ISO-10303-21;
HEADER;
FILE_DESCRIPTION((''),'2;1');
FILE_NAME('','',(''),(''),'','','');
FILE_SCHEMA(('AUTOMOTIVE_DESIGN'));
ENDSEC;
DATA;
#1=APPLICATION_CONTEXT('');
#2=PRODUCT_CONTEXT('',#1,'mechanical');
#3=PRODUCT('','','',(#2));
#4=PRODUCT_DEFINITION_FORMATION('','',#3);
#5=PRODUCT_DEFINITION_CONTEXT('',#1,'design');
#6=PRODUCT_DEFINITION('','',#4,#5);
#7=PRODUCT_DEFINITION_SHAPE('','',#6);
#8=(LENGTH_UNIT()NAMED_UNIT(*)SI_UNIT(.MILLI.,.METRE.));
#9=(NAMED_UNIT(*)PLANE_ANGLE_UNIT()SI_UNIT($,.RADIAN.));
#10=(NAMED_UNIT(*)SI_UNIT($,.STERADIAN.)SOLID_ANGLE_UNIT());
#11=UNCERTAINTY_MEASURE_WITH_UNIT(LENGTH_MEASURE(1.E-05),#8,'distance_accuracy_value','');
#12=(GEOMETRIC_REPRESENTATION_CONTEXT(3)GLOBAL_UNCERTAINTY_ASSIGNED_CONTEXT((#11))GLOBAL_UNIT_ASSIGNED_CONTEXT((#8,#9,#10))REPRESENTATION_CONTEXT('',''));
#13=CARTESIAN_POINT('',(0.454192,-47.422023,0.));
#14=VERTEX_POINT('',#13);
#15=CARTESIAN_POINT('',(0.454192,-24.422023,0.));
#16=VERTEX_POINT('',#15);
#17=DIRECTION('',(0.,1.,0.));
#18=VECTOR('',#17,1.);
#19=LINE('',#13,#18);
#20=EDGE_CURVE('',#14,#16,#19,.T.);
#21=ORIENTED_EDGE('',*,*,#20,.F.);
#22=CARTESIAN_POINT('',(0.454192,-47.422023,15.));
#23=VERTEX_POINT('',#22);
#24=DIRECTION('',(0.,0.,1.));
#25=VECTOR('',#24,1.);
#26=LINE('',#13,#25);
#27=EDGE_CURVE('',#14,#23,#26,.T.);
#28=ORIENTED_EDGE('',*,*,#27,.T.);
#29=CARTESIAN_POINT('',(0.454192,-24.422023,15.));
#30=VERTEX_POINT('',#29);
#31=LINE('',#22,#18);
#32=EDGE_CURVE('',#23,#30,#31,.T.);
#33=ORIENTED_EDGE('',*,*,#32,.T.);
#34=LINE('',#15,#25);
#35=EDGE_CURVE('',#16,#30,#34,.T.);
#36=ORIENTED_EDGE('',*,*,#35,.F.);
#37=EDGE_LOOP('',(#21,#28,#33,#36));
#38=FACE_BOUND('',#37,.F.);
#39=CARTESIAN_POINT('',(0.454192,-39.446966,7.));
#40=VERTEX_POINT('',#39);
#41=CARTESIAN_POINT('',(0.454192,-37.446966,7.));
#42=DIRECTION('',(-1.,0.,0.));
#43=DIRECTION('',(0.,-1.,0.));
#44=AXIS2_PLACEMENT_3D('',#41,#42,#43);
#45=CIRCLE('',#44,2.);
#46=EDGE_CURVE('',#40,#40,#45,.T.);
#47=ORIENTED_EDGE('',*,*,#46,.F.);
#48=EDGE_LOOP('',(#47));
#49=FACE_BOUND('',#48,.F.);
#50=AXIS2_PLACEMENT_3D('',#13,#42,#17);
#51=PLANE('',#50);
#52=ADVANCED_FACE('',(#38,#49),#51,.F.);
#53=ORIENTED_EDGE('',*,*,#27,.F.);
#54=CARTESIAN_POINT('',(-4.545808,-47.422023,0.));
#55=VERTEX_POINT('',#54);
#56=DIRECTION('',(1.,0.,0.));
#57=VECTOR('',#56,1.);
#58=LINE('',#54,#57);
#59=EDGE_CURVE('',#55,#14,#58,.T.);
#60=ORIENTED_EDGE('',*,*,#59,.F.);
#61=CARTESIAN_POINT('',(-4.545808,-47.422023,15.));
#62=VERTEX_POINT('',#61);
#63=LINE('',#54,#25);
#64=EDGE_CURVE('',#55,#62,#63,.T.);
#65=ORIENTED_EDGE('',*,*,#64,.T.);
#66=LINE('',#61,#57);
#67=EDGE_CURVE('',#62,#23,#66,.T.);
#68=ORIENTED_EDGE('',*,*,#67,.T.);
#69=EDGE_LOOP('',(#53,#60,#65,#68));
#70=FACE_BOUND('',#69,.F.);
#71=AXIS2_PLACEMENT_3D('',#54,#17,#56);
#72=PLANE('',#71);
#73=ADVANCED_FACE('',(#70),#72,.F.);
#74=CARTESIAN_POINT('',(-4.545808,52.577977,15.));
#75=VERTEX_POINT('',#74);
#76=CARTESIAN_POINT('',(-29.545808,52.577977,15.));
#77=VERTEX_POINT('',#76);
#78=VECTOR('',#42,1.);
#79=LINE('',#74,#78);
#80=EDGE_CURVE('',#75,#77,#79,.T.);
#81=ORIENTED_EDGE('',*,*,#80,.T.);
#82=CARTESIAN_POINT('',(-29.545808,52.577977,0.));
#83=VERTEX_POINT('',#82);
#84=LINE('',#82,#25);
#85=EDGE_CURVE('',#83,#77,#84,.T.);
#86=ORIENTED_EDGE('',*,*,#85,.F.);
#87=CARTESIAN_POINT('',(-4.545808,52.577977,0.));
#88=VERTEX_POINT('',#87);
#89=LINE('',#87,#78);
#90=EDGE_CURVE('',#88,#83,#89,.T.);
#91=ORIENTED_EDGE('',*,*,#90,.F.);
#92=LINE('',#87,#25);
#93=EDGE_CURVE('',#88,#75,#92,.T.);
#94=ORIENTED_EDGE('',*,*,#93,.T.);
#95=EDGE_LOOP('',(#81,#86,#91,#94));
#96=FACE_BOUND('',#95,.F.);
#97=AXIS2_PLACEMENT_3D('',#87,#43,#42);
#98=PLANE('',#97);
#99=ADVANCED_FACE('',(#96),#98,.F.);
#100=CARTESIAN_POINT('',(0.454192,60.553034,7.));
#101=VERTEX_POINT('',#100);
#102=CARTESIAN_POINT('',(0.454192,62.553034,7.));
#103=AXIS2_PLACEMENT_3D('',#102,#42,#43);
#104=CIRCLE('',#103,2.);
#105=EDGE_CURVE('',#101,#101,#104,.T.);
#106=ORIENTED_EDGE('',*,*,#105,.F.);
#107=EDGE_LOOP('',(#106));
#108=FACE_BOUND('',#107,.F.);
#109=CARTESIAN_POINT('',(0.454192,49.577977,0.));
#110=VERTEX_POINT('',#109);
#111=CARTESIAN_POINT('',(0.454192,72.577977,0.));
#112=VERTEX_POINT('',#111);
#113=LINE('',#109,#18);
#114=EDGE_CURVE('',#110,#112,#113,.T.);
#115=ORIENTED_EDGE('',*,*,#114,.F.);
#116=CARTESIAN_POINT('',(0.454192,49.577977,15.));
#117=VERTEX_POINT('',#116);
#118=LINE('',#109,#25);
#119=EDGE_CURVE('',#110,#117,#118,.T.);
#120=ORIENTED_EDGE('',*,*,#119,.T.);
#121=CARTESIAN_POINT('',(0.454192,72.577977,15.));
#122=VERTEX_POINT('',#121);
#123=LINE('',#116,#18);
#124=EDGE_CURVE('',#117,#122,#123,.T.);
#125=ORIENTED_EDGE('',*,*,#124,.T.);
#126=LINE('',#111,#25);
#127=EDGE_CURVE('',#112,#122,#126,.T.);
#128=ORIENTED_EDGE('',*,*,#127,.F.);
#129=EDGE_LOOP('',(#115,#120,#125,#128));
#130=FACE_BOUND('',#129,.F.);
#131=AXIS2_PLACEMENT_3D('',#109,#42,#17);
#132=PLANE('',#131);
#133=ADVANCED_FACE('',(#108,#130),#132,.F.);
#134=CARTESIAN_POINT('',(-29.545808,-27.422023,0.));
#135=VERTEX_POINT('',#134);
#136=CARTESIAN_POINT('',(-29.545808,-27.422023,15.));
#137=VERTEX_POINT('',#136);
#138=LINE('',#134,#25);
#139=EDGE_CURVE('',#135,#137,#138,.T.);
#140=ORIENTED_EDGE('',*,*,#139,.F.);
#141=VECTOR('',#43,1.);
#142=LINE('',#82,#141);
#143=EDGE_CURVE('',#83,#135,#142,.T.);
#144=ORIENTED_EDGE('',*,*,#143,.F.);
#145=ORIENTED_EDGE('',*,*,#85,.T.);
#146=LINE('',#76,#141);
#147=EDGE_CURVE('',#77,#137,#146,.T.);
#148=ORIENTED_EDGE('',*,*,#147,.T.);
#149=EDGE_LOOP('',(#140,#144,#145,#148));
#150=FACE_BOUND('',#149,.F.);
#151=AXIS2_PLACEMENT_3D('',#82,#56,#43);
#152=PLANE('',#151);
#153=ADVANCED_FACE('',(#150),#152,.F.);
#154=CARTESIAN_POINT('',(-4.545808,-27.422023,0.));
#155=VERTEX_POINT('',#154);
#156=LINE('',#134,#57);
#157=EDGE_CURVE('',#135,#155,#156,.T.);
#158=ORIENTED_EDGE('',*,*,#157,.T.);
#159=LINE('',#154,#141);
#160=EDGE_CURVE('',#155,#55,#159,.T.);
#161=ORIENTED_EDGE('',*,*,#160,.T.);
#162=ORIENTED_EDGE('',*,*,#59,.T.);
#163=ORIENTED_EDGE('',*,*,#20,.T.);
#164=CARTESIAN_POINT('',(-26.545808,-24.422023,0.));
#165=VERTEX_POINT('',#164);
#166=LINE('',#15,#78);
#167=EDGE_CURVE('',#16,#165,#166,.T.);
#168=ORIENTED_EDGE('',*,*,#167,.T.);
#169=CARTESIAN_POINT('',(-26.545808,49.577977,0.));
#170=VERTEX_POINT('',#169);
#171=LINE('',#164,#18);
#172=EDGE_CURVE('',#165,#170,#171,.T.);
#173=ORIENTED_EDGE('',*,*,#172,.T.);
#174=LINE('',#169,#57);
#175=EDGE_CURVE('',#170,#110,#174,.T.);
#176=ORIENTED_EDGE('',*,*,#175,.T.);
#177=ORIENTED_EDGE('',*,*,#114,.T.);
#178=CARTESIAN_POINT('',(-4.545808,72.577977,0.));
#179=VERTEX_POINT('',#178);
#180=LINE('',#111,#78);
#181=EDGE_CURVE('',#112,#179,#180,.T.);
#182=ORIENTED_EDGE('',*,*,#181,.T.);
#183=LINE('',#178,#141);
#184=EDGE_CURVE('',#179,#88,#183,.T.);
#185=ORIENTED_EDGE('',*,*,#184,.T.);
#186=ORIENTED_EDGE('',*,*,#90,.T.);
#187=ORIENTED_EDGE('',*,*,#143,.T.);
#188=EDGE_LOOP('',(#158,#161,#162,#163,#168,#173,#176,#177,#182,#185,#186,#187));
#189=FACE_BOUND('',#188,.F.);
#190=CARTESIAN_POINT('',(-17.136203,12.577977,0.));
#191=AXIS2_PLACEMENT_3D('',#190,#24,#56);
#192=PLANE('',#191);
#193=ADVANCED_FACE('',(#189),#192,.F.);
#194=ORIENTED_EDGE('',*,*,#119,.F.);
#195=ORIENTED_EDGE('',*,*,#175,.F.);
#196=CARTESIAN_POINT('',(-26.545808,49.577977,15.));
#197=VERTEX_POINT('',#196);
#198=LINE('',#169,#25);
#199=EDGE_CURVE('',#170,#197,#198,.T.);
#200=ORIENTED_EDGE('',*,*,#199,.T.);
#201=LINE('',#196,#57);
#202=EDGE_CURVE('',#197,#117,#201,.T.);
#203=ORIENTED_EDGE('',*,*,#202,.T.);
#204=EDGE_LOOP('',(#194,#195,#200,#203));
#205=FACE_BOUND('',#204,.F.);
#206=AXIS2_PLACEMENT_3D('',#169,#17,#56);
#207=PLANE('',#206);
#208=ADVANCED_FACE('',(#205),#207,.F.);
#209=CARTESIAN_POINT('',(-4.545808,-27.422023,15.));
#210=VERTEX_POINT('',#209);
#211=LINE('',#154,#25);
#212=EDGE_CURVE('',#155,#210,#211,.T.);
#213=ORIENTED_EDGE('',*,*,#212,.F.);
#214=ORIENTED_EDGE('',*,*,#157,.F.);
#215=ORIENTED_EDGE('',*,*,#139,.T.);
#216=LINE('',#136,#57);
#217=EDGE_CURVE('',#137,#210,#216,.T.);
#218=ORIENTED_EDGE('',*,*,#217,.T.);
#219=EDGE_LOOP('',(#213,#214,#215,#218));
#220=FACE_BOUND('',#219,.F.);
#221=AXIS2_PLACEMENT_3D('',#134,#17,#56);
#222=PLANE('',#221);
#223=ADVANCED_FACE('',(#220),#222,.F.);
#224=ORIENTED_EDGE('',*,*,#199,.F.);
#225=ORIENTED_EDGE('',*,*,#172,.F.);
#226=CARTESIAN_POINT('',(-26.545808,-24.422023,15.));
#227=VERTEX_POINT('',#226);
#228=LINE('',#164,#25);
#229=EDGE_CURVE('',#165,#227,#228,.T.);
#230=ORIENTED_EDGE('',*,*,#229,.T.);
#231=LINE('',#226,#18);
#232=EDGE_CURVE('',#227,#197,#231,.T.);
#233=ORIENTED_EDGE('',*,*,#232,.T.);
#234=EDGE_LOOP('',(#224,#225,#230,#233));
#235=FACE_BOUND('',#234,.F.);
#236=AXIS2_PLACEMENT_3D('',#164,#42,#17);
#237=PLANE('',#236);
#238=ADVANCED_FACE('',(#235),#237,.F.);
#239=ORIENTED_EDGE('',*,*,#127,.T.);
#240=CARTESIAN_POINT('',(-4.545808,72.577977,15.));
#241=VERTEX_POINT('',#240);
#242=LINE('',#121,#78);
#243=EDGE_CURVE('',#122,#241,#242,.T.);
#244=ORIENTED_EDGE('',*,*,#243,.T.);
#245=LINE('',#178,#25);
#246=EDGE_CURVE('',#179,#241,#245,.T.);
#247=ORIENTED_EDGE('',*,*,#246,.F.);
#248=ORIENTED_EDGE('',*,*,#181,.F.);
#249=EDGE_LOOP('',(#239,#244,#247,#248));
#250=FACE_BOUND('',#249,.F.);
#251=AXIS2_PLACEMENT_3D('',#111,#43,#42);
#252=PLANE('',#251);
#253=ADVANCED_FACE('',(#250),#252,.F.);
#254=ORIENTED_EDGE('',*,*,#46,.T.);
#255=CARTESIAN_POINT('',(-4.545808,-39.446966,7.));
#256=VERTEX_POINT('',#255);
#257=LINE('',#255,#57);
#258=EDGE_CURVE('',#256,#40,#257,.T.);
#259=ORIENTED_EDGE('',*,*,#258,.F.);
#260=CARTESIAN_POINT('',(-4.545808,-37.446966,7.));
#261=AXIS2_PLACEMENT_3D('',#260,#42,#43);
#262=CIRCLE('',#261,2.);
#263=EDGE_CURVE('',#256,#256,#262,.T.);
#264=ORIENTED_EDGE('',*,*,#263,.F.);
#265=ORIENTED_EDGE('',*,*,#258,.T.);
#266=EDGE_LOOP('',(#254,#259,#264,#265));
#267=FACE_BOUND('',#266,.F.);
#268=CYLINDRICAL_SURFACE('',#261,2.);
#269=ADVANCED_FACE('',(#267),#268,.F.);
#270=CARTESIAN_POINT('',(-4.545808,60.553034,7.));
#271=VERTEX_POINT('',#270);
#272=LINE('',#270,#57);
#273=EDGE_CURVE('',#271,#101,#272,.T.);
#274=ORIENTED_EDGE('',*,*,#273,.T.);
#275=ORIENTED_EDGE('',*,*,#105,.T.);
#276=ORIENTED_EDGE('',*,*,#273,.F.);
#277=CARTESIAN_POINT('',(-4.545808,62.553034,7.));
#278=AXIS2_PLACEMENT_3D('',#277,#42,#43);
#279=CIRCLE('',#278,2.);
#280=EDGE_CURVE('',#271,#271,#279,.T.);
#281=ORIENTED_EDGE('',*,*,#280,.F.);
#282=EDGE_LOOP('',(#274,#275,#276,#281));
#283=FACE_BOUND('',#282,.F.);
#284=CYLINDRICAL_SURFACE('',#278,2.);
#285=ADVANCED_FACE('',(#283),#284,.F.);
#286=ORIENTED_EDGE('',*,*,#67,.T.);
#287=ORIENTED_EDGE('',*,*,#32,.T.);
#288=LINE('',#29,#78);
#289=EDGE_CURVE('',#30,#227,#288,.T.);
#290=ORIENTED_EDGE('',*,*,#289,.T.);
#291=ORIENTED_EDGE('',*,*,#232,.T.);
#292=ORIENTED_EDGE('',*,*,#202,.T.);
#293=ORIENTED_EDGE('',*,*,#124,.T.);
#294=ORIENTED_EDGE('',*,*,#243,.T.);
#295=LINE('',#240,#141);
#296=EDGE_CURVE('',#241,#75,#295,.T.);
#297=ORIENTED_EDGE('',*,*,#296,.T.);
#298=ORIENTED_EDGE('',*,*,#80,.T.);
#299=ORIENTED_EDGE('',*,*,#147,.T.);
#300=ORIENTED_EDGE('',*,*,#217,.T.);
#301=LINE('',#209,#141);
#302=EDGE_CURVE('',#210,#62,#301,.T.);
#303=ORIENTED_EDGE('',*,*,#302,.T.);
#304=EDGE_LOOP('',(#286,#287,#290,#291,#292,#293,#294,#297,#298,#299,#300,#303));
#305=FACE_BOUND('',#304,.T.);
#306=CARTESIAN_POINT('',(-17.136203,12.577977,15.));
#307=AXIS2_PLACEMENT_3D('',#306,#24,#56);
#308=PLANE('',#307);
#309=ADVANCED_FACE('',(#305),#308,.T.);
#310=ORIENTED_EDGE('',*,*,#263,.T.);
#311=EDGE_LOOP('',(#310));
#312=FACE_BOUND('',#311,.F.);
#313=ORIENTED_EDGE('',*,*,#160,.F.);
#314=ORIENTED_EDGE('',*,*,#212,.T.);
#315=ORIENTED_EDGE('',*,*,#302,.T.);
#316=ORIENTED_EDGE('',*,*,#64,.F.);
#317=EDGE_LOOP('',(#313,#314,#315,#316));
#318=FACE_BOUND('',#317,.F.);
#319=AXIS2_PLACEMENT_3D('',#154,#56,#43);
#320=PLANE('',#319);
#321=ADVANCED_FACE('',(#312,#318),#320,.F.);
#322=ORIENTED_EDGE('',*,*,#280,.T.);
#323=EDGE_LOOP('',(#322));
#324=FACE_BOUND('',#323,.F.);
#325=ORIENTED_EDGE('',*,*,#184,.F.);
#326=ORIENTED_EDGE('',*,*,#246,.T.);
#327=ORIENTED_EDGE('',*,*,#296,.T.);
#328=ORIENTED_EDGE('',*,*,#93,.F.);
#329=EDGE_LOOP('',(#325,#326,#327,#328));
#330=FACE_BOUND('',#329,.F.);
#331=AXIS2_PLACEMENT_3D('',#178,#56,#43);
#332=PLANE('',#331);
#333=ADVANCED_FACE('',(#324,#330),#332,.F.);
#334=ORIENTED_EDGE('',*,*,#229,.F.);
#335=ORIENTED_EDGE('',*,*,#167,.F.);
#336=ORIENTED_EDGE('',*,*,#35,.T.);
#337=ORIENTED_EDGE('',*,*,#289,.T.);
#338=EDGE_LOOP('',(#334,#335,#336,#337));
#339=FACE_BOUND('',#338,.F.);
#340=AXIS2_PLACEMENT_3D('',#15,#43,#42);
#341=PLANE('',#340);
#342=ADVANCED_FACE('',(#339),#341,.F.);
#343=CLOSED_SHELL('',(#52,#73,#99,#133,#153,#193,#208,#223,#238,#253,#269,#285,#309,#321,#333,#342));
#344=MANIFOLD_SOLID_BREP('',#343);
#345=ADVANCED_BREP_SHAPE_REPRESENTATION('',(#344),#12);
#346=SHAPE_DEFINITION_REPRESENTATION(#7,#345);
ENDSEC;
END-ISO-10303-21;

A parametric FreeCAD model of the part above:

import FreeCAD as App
import Part
import Sketcher
from FreeCAD import Vector
Q = App.Units.Quantity


def add_polygon(sketch, points):
    """Adds a closed chain of lines whose ends are joined by coincident constraints."""
    first, n = sketch.GeometryCount, len(points)
    for a, b in zip(points, points[1:] + points[:1]):
        sketch.addGeometry(Part.LineSegment(App.Vector(*a, 0), App.Vector(*b, 0)), False)
    for i in range(n):
        sketch.addConstraint(Sketcher.Constraint("Coincident", first + i, 2, first + (i + 1) % n, 1))

doc = App.newDocument("Part")
params = doc.addObject("Spreadsheet::Sheet", "Params")
for row, (alias, value) in enumerate([
    ("sketch1_width", "25 mm"),
    ("sketch1_width2", "5 mm"),
    ("sketch1_width3", "27 mm"),
    ("sketch1_height", "20 mm"),
    ("sketch1_height2", "80 mm"),
    ("pad1_length", "15 mm"),
    ("sketch2_diameter", "4 mm"),
    ("pocket1_length", "25 mm"),
], start=1):
    params.set(f"A{row}", alias)
    params.set(f"B{row}", "=" + value)
    params.setAlias(f"B{row}", alias)

body = doc.addObject("PartDesign::Body", "Body")

# Sketch on XY plane
sketch1 = body.newObject("Sketcher::SketchObject", "Sketch")
sketch1.AttachmentSupport = (doc.getObject("XY_Plane"), [""])
sketch1.MapMode = "FlatFace"
add_polygon(sketch1, [(-4.545808, 72.577977), (-4.545808, 52.577977), (-29.545808, 52.577977), (-29.545808, -27.422023), (-4.545808, -27.422023), (-4.545808, -47.422023), (0.454192, -47.422023), (0.454192, -24.422023), (-26.545808, -24.422023), (-26.545808, 49.577977), (0.454192, 49.577977), (0.454192, 72.577977)])  # lines 0-11
sketch1.addConstraint(Sketcher.Constraint("Vertical", 0))
sketch1.addConstraint(Sketcher.Constraint("Horizontal", 1))
sketch1.addConstraint(Sketcher.Constraint("Vertical", 2))
sketch1.addConstraint(Sketcher.Constraint("Horizontal", 3))
sketch1.addConstraint(Sketcher.Constraint("Vertical", 4))
sketch1.addConstraint(Sketcher.Constraint("Horizontal", 5))
sketch1.addConstraint(Sketcher.Constraint("Vertical", 6))
sketch1.addConstraint(Sketcher.Constraint("Horizontal", 7))
sketch1.addConstraint(Sketcher.Constraint("Vertical", 8))
sketch1.addConstraint(Sketcher.Constraint("Horizontal", 9))
sketch1.addConstraint(Sketcher.Constraint("Vertical", 10))
sketch1.addConstraint(Sketcher.Constraint("Horizontal", 11))
sketch1.addConstraint(Sketcher.Constraint("Vertical", 0, 2, 3, 2))
sketch1.addConstraint(Sketcher.Constraint("Vertical", 6, 2, 9, 2))
sketch1.addConstraint(Sketcher.Constraint("Equal", 0, 4))
sketch1.addConstraint(Sketcher.Constraint("Equal", 6, 10))
sketch1.addConstraint(Sketcher.Constraint("DistanceX", 1, 2, 1, 1, Q("25 mm")))
sketch1.addConstraint(Sketcher.Constraint("DistanceX", 5, 1, 5, 2, Q("5 mm")))
sketch1.addConstraint(Sketcher.Constraint("DistanceX", 7, 2, 7, 1, Q("27 mm")))
sketch1.addConstraint(Sketcher.Constraint("DistanceY", 0, 2, 0, 1, Q("20 mm")))
sketch1.addConstraint(Sketcher.Constraint("DistanceY", 2, 2, 2, 1, Q("80 mm")))
sketch1.addConstraint(Sketcher.Constraint("DistanceY", 6, 1, 6, 2, Q("23 mm")))
sketch1.addConstraint(Sketcher.Constraint("DistanceX", 1, 2, -1, 1, Q("29.545808 mm")))
sketch1.addConstraint(Sketcher.Constraint("DistanceY", -1, 1, 0, 2, Q("52.577977 mm")))
sketch1.setExpression("Constraints[28]", "Params.sketch1_width")
sketch1.setExpression("Constraints[29]", "Params.sketch1_width2")
sketch1.setExpression("Constraints[30]", "Params.sketch1_width3")
sketch1.setExpression("Constraints[31]", "Params.sketch1_height")
sketch1.setExpression("Constraints[32]", "Params.sketch1_height2")
pad1 = body.newObject("PartDesign::Pad", "Pad")
pad1.Profile = sketch1
pad1.setExpression("Length", "Params.pad1_length")

# Sketch on YZ plane
sketch2 = body.newObject("Sketcher::SketchObject", "Sketch001")
sketch2.AttachmentSupport = (doc.getObject("YZ_Plane"), [""])
sketch2.MapMode = "FlatFace"
sketch2.AttachmentOffset = App.Placement(Vector(0, 0, -4.545808), App.Rotation())
sketch2.addGeometry(Part.Circle(Vector(62.553034, 7, 0), Vector(0, 0, 1), 2), False)
sketch2.addGeometry(Part.Circle(Vector(-37.446966, 7, 0), Vector(0, 0, 1), 2), False)
sketch2.addConstraint(Sketcher.Constraint("Equal", 0, 1))
sketch2.addConstraint(Sketcher.Constraint("Horizontal", 0, 3, 1, 3))
sketch2.addConstraint(Sketcher.Constraint("Diameter", 0, Q("4 mm")))
sketch2.addConstraint(Sketcher.Constraint("DistanceY", -1, 1, 0, 3, Q("7 mm")))
sketch2.addConstraint(Sketcher.Constraint("DistanceX", 1, 3, 0, 3, Q("100 mm")))
sketch2.addConstraint(Sketcher.Constraint("DistanceX", -1, 1, 0, 3, Q("62.553034 mm")))
sketch2.setExpression("Constraints[2]", "Params.sketch2_diameter")
pocket1 = body.newObject("PartDesign::Pocket", "Pocket")
pocket1.Profile = sketch2
pocket1.setExpression("Length", "Params.pocket1_length")
pocket1.Reversed = True

doc.recompute()
